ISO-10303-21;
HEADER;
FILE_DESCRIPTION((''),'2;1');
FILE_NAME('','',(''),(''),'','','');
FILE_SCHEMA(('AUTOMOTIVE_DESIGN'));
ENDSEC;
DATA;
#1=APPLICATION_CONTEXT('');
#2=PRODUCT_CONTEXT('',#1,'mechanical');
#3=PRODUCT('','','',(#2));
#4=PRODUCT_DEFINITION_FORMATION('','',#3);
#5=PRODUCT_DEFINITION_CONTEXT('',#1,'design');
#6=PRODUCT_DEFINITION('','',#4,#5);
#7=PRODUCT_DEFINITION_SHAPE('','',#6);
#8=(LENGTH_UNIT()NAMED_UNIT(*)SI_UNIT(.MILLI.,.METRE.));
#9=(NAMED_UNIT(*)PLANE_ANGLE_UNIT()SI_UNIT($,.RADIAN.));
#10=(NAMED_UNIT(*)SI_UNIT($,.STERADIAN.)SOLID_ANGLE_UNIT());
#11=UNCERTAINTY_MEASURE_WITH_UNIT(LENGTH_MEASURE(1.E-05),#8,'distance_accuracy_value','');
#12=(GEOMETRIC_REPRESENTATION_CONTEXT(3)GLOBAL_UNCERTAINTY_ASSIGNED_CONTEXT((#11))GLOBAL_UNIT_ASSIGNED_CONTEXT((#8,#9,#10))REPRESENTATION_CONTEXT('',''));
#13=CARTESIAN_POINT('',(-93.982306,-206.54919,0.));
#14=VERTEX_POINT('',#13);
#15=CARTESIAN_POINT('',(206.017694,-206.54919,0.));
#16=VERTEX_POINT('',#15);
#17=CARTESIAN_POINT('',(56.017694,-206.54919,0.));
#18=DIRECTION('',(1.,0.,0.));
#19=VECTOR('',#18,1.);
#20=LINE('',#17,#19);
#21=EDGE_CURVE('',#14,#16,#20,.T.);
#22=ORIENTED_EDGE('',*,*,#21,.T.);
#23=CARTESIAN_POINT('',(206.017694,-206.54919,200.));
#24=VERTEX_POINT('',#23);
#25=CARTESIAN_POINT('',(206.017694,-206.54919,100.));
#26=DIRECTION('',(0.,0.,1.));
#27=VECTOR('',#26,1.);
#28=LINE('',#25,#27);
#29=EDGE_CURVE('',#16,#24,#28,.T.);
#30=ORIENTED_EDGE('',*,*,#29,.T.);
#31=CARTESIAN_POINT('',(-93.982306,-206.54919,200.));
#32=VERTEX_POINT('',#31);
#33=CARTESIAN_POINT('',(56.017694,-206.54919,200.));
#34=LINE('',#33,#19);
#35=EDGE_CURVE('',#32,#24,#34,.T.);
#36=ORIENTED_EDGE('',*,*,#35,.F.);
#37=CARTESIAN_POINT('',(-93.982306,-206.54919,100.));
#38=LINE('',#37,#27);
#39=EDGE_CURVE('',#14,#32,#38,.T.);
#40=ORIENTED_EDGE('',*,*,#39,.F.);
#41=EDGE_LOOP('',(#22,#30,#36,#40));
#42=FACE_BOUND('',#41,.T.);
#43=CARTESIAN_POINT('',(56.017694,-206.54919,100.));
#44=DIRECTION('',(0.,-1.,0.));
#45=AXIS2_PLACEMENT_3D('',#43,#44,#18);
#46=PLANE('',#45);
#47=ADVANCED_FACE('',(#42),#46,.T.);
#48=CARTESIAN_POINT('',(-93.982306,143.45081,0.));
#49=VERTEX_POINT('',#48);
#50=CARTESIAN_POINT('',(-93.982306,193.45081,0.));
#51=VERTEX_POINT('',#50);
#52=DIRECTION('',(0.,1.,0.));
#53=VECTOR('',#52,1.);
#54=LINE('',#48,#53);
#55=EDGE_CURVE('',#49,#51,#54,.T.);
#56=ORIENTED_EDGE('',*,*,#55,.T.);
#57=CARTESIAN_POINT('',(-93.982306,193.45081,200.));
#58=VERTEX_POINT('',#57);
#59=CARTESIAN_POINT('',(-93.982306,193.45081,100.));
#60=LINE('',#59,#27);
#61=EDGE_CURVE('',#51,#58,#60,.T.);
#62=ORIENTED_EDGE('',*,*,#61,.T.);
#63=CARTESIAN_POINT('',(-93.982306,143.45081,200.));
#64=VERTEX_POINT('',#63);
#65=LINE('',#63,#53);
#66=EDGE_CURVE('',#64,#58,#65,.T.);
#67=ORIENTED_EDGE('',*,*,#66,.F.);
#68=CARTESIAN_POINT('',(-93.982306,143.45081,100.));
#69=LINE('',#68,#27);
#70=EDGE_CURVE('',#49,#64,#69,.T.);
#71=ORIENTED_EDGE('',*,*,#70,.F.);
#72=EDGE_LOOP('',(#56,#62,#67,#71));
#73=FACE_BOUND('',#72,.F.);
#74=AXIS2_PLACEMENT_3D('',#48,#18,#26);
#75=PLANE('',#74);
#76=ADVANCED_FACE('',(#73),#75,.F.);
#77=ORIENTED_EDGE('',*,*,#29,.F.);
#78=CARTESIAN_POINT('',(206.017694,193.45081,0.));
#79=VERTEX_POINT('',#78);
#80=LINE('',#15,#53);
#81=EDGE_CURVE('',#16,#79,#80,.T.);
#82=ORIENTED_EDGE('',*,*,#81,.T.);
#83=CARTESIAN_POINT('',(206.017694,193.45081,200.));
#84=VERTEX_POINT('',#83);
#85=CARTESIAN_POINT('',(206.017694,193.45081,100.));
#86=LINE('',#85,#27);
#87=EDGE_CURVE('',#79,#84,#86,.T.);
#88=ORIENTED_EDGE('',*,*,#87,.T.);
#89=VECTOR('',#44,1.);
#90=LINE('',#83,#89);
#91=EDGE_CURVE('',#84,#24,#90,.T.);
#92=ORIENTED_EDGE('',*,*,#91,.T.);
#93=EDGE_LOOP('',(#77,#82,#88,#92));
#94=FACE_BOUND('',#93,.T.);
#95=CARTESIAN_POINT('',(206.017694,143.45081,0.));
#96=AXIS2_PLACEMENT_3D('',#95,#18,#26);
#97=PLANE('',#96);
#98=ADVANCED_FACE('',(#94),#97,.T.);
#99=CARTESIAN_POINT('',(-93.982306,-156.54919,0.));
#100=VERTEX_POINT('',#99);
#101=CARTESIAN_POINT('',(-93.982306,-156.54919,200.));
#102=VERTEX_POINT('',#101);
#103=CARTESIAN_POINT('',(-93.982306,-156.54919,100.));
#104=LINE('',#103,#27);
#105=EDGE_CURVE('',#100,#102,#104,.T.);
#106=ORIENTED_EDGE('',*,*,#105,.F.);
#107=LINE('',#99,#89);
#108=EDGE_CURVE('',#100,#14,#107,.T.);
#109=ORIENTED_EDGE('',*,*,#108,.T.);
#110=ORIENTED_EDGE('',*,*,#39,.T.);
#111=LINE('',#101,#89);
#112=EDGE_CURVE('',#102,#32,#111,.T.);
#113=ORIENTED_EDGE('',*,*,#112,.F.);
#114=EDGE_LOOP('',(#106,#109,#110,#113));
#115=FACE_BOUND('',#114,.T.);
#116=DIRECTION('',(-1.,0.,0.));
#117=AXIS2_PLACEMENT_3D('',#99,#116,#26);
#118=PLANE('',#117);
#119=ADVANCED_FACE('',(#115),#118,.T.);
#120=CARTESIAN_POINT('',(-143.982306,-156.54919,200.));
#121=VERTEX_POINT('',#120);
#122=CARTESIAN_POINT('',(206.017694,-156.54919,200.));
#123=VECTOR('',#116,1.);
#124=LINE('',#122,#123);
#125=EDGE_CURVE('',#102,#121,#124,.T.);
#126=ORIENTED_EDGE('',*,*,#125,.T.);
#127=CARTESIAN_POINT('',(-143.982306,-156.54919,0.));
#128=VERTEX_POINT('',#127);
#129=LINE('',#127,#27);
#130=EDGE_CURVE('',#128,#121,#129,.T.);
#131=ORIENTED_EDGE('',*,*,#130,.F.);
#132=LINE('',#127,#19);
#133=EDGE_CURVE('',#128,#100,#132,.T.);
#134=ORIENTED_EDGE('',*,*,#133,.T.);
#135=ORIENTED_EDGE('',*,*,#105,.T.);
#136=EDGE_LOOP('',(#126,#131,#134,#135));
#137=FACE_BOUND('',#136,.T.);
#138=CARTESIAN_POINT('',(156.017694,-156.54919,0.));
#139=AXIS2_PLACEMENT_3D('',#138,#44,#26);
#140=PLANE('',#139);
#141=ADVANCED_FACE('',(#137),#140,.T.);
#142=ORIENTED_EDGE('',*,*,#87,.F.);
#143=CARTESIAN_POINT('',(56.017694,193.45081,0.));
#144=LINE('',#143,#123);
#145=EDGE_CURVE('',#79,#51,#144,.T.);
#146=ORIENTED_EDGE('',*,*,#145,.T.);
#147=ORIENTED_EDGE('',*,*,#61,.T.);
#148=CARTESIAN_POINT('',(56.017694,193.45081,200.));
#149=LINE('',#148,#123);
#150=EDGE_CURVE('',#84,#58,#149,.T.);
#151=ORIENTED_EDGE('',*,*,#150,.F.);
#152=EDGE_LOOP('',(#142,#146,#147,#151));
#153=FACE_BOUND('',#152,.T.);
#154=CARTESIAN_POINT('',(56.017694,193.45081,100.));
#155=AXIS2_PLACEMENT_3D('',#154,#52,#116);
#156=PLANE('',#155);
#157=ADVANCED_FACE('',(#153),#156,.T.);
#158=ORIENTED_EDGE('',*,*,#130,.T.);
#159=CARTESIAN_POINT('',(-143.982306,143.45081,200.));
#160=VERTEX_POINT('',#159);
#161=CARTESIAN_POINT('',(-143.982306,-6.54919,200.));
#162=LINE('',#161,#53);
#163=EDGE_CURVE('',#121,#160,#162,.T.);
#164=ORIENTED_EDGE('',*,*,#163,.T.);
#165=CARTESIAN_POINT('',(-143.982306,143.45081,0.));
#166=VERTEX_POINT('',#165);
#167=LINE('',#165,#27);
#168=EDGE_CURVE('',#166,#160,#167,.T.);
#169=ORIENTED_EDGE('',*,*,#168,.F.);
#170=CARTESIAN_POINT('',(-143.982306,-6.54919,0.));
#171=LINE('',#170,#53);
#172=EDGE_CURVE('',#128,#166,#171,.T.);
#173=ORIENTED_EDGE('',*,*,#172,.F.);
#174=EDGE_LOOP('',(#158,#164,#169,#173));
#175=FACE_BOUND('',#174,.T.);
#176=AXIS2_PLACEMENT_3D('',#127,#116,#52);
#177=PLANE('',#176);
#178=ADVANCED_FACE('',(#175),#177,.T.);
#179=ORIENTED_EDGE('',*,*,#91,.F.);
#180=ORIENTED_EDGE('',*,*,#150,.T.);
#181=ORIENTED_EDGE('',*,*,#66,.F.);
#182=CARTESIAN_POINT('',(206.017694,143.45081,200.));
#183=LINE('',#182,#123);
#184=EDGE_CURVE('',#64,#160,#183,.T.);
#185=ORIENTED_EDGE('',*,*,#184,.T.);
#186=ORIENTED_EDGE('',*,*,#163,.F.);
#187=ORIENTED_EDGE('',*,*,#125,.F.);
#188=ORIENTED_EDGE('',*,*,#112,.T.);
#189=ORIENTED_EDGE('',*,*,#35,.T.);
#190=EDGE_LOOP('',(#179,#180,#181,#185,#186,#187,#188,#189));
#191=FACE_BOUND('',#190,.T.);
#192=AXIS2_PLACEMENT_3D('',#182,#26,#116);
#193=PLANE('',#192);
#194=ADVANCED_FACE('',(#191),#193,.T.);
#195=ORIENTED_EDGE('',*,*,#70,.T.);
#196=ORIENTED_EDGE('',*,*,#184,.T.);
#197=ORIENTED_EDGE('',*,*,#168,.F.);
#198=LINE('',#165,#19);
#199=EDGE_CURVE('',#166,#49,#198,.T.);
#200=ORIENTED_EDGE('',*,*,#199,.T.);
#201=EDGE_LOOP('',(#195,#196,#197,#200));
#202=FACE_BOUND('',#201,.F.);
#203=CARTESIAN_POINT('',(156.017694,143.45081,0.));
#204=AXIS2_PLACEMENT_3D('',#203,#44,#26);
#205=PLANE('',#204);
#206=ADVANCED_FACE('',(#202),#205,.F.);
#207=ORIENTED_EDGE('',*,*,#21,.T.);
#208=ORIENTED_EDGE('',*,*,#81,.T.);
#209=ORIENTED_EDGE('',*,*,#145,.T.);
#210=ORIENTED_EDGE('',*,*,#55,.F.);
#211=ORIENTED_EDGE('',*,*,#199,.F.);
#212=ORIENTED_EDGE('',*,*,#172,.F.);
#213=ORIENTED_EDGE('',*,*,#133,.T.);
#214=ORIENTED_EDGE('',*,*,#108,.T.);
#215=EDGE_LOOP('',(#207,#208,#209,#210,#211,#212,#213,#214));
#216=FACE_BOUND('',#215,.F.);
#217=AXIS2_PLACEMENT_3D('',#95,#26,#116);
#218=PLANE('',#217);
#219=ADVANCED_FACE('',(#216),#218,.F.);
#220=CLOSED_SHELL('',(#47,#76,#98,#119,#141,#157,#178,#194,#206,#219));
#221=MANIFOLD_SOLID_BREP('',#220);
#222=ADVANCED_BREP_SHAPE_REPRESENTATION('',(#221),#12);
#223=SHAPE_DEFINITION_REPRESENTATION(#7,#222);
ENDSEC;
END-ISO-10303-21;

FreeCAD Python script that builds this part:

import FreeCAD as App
import Part
import Sketcher

V = App.Vector

doc = App.newDocument("Part")
params = doc.addObject("Spreadsheet::Sheet", "Params")
for row, (alias, value) in enumerate([
    ("sketch1_width", "300 mm"),
    ("pad1_length", "200 mm"),
    ("sketch2_width", "300 mm"),
    ("sketch2_height", "200 mm"),
    ("pad2_length", "50 mm"),
    ("sketch3_width", "300 mm"),
    ("sketch3_height", "200 mm"),
    ("pad3_length", "50 mm"),
    ("sketch4_width", "300 mm"),
    ("sketch4_height", "200 mm"),
    ("pad4_length", "50 mm"),
], start=1):
    params.set(f"A{row}", alias)
    params.set(f"B{row}", "=" + value)
    params.setAlias(f"B{row}", alias)

body = doc.addObject("PartDesign::Body", "Body")

sketch1 = doc.addObject("Sketcher::SketchObject", "Sketch")
body.addObject(sketch1)
sketch1.AttachmentSupport = (doc.XY_Plane, [""])
sketch1.MapMode = "FlatFace"
sketch1.addGeometry(Part.LineSegment(V(-144, 143, 0), V(-144, -157, 0)), False)
sketch1.addGeometry(Part.LineSegment(V(-144, -157, 0), V(156, -157, 0)), False)
sketch1.addGeometry(Part.LineSegment(V(156, -157, 0), V(156, 143, 0)), False)
sketch1.addGeometry(Part.LineSegment(V(156, 143, 0), V(-144, 143, 0)), False)
sketch1.addConstraint(Sketcher.Constraint("Coincident", 0, 2, 1, 1))
sketch1.addConstraint(Sketcher.Constraint("Coincident", 1, 2, 2, 1))
sketch1.addConstraint(Sketcher.Constraint("Coincident", 2, 2, 3, 1))
sketch1.addConstraint(Sketcher.Constraint("Coincident", 3, 2, 0, 1))
sketch1.addConstraint(Sketcher.Constraint("Vertical", 0))
sketch1.addConstraint(Sketcher.Constraint("Horizontal", 1))
sketch1.addConstraint(Sketcher.Constraint("Vertical", 2))
sketch1.addConstraint(Sketcher.Constraint("Horizontal", 3))
sketch1.addConstraint(Sketcher.Constraint("Equal", 3, 0))
sketch1.addConstraint(Sketcher.Constraint("DistanceX", 1, 1, 1, 2, 300.0))
sketch1.addConstraint(Sketcher.Constraint("DistanceY", 0, 2, -1, 1, 156.54919))
sketch1.addConstraint(Sketcher.Constraint("DistanceX", 0, 2, -1, 1, 143.982306))
sketch1.setExpression("Constraints[9]", "Params.sketch1_width")
pad1 = doc.addObject("PartDesign::Pad", "Pad")
body.addObject(pad1)
pad1.Profile = sketch1
pad1.setExpression("Length", "Params.pad1_length")

sketch2 = doc.addObject("Sketcher::SketchObject", "Sketch001")
body.addObject(sketch2)
sketch2.AttachmentSupport = (doc.YZ_Plane, [""])
sketch2.MapMode = "FlatFace"
sketch2.AttachmentOffset = App.Placement(V(0, 0, 156.017694), App.Rotation())
sketch2.addGeometry(Part.LineSegment(V(-157, 200, 0), V(-157, 0, 0)), False)
sketch2.addGeometry(Part.LineSegment(V(-157, 0, 0), V(143, 0, 0)), False)
sketch2.addGeometry(Part.LineSegment(V(143, 0, 0), V(143, 200, 0)), False)
sketch2.addGeometry(Part.LineSegment(V(143, 200, 0), V(-157, 200, 0)), False)
sketch2.addConstraint(Sketcher.Constraint("Coincident", 0, 2, 1, 1))
sketch2.addConstraint(Sketcher.Constraint("Coincident", 1, 2, 2, 1))
sketch2.addConstraint(Sketcher.Constraint("Coincident", 2, 2, 3, 1))
sketch2.addConstraint(Sketcher.Constraint("Coincident", 3, 2, 0, 1))
sketch2.addConstraint(Sketcher.Constraint("Vertical", 0))
sketch2.addConstraint(Sketcher.Constraint("Horizontal", 1))
sketch2.addConstraint(Sketcher.Constraint("Vertical", 2))
sketch2.addConstraint(Sketcher.Constraint("Horizontal", 3))
sketch2.addConstraint(Sketcher.Constraint("PointOnObject", 0, 2, -1))
sketch2.addConstraint(Sketcher.Constraint("DistanceX", 1, 1, 1, 2, 300.0))
sketch2.addConstraint(Sketcher.Constraint("DistanceY", 0, 2, 0, 1, 200.0))
sketch2.addConstraint(Sketcher.Constraint("DistanceX", 0, 2, -1, 1, 156.54919))
sketch2.setExpression("Constraints[9]", "Params.sketch2_width")
sketch2.setExpression("Constraints[10]", "Params.sketch2_height")
pad2 = doc.addObject("PartDesign::Pad", "Pad001")
body.addObject(pad2)
pad2.Profile = sketch2
pad2.setExpression("Length", "Params.pad2_length")

sketch3 = doc.addObject("Sketcher::SketchObject", "Sketch002")
body.addObject(sketch3)
sketch3.AttachmentSupport = (doc.XZ_Plane, [""])
sketch3.MapMode = "FlatFace"
sketch3.AttachmentOffset = App.Placement(V(0, 0, 156.54919), App.Rotation())
sketch3.addGeometry(Part.LineSegment(V(-94, 200, 0), V(-94, 0, 0)), False)
sketch3.addGeometry(Part.LineSegment(V(-94, 0, 0), V(206, 0, 0)), False)
sketch3.addGeometry(Part.LineSegment(V(206, 0, 0), V(206, 200, 0)), False)
sketch3.addGeometry(Part.LineSegment(V(206, 200, 0), V(-94, 200, 0)), False)
sketch3.addConstraint(Sketcher.Constraint("Coincident", 0, 2, 1, 1))
sketch3.addConstraint(Sketcher.Constraint("Coincident", 1, 2, 2, 1))
sketch3.addConstraint(Sketcher.Constraint("Coincident", 2, 2, 3, 1))
sketch3.addConstraint(Sketcher.Constraint("Coincident", 3, 2, 0, 1))
sketch3.addConstraint(Sketcher.Constraint("Vertical", 0))
sketch3.addConstraint(Sketcher.Constraint("Horizontal", 1))
sketch3.addConstraint(Sketcher.Constraint("Vertical", 2))
sketch3.addConstraint(Sketcher.Constraint("Horizontal", 3))
sketch3.addConstraint(Sketcher.Constraint("PointOnObject", 0, 2, -1))
sketch3.addConstraint(Sketcher.Constraint("DistanceX", 1, 1, 1, 2, 300.0))
sketch3.addConstraint(Sketcher.Constraint("DistanceY", 0, 2, 0, 1, 200.0))
sketch3.addConstraint(Sketcher.Constraint("DistanceX", 0, 2, -1, 1, 93.982306))
sketch3.setExpression("Constraints[9]", "Params.sketch3_width")
sketch3.setExpression("Constraints[10]", "Params.sketch3_height")
pad3 = doc.addObject("PartDesign::Pad", "Pad002")
body.addObject(pad3)
pad3.Profile = sketch3
pad3.setExpression("Length", "Params.pad3_length")

sketch4 = doc.addObject("Sketcher::SketchObject", "Sketch003")
body.addObject(sketch4)
sketch4.AttachmentSupport = (doc.XZ_Plane, [""])
sketch4.MapMode = "FlatFace"
sketch4.AttachmentOffset = App.Placement(V(0, 0, -143.45081), App.Rotation())
sketch4.addGeometry(Part.LineSegment(V(206, 200, 0), V(206, 0, 0)), False)
sketch4.addGeometry(Part.LineSegment(V(206, 0, 0), V(-94, 0, 0)), False)
sketch4.addGeometry(Part.LineSegment(V(-94, 0, 0), V(-94, 200, 0)), False)
sketch4.addGeometry(Part.LineSegment(V(-94, 200, 0), V(206, 200, 0)), False)
sketch4.addConstraint(Sketcher.Constraint("Coincident", 0, 2, 1, 1))
sketch4.addConstraint(Sketcher.Constraint("Coincident", 1, 2, 2, 1))
sketch4.addConstraint(Sketcher.Constraint("Coincident", 2, 2, 3, 1))
sketch4.addConstraint(Sketcher.Constraint("Coincident", 3, 2, 0, 1))
sketch4.addConstraint(Sketcher.Constraint("Vertical", 0))
sketch4.addConstraint(Sketcher.Constraint("Horizontal", 1))
sketch4.addConstraint(Sketcher.Constraint("Vertical", 2))
sketch4.addConstraint(Sketcher.Constraint("Horizontal", 3))
sketch4.addConstraint(Sketcher.Constraint("PointOnObject", 0, 2, -1))
sketch4.addConstraint(Sketcher.Constraint("DistanceX", 1, 2, 1, 1, 300.0))
sketch4.addConstraint(Sketcher.Constraint("DistanceY", 0, 2, 0, 1, 200.0))
sketch4.addConstraint(Sketcher.Constraint("DistanceX", -1, 1, 0, 2, 206.017694))
sketch4.setExpression("Constraints[9]", "Params.sketch4_width")
sketch4.setExpression("Constraints[10]", "Params.sketch4_height")
pad4 = doc.addObject("PartDesign::Pad", "Pad003")
body.addObject(pad4)
pad4.Profile = sketch4
pad4.setExpression("Length", "Params.pad4_length")
pad4.Reversed = True

doc.recompute()
